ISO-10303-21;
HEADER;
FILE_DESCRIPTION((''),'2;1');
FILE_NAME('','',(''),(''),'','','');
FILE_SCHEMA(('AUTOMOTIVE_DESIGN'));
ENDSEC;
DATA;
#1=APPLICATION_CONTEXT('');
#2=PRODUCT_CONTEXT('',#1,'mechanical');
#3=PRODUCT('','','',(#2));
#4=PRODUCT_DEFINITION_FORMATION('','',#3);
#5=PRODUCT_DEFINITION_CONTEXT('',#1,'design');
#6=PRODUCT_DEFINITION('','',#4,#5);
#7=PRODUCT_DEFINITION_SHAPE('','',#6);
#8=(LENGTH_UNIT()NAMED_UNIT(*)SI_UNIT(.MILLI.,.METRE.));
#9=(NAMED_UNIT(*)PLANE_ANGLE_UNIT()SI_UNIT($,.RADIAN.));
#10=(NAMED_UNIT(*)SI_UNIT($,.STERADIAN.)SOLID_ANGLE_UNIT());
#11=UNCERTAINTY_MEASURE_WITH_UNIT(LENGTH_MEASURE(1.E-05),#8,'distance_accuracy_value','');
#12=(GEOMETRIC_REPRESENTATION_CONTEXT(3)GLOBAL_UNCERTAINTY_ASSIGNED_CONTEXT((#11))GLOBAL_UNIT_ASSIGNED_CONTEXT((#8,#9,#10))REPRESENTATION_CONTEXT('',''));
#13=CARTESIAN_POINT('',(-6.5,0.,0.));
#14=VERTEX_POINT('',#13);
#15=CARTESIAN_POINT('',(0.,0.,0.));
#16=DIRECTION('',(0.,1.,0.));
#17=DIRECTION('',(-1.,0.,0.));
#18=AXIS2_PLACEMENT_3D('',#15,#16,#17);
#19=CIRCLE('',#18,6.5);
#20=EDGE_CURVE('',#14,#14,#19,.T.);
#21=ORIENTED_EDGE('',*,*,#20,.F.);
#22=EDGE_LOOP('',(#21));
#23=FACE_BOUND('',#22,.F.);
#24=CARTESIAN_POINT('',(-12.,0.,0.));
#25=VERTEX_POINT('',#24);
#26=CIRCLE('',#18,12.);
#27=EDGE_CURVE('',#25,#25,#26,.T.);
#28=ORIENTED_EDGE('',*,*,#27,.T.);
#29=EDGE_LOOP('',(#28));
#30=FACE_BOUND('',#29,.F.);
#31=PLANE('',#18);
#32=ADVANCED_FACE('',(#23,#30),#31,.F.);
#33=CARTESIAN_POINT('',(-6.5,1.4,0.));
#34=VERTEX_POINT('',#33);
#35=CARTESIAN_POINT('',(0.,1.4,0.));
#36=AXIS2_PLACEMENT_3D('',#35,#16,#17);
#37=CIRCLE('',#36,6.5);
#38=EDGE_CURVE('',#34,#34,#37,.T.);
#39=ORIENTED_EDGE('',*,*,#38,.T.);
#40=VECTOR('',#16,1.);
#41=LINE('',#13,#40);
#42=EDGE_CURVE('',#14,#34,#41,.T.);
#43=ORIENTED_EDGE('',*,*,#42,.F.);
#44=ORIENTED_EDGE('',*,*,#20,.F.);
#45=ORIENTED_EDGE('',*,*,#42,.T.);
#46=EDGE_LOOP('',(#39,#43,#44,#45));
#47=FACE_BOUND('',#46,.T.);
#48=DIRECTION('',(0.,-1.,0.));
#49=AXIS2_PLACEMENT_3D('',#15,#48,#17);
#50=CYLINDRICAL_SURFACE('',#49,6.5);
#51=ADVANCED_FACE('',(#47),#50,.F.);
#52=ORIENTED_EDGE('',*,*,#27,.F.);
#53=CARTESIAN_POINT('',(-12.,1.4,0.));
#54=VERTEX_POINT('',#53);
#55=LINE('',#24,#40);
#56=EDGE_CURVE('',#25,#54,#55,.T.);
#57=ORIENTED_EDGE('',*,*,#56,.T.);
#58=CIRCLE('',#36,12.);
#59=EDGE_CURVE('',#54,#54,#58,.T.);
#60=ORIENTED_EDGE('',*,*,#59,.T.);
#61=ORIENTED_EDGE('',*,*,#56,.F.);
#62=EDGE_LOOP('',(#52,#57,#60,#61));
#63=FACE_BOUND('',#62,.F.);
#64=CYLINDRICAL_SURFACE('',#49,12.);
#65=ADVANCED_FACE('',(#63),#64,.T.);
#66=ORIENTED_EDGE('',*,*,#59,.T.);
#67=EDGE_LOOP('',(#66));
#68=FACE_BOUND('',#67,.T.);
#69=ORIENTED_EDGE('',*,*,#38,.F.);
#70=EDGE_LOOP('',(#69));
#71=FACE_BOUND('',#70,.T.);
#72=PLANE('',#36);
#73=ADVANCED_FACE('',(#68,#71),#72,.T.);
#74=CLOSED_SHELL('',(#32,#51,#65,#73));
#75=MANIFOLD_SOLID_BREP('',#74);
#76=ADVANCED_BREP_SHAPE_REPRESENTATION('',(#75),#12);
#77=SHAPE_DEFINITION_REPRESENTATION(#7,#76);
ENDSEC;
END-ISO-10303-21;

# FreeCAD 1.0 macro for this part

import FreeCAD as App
import Part
import Sketcher

doc = App.newDocument("Part")
body = doc.addObject("PartDesign::Body", "Body")

sketch1 = doc.addObject("Sketcher::SketchObject", "Sketch")
body.addObject(sketch1)
sketch1.AttachmentSupport = (doc.XZ_Plane, [""])
sketch1.MapMode = "FlatFace"
sketch1.addGeometry(Part.Circle(App.Vector(0, 0, 0), App.Vector(0, 0, 1), 12), False)
sketch1.addGeometry(Part.Circle(App.Vector(0, 0, 0), App.Vector(0, 0, 1), 6), False)
sketch1.addConstraint(Sketcher.Constraint("Coincident", 0, 3, -1, 1))
sketch1.addConstraint(Sketcher.Constraint("Coincident", 1, 3, -1, 1))
sketch1.addConstraint(Sketcher.Constraint("Diameter", 0, 24.0))
sketch1.addConstraint(Sketcher.Constraint("Diameter", 1, 13.0))
pad1 = doc.addObject("PartDesign::Pad", "Pad")
body.addObject(pad1)
pad1.Profile = sketch1
pad1.Length = 1.4
pad1.Reversed = True

doc.recompute()
